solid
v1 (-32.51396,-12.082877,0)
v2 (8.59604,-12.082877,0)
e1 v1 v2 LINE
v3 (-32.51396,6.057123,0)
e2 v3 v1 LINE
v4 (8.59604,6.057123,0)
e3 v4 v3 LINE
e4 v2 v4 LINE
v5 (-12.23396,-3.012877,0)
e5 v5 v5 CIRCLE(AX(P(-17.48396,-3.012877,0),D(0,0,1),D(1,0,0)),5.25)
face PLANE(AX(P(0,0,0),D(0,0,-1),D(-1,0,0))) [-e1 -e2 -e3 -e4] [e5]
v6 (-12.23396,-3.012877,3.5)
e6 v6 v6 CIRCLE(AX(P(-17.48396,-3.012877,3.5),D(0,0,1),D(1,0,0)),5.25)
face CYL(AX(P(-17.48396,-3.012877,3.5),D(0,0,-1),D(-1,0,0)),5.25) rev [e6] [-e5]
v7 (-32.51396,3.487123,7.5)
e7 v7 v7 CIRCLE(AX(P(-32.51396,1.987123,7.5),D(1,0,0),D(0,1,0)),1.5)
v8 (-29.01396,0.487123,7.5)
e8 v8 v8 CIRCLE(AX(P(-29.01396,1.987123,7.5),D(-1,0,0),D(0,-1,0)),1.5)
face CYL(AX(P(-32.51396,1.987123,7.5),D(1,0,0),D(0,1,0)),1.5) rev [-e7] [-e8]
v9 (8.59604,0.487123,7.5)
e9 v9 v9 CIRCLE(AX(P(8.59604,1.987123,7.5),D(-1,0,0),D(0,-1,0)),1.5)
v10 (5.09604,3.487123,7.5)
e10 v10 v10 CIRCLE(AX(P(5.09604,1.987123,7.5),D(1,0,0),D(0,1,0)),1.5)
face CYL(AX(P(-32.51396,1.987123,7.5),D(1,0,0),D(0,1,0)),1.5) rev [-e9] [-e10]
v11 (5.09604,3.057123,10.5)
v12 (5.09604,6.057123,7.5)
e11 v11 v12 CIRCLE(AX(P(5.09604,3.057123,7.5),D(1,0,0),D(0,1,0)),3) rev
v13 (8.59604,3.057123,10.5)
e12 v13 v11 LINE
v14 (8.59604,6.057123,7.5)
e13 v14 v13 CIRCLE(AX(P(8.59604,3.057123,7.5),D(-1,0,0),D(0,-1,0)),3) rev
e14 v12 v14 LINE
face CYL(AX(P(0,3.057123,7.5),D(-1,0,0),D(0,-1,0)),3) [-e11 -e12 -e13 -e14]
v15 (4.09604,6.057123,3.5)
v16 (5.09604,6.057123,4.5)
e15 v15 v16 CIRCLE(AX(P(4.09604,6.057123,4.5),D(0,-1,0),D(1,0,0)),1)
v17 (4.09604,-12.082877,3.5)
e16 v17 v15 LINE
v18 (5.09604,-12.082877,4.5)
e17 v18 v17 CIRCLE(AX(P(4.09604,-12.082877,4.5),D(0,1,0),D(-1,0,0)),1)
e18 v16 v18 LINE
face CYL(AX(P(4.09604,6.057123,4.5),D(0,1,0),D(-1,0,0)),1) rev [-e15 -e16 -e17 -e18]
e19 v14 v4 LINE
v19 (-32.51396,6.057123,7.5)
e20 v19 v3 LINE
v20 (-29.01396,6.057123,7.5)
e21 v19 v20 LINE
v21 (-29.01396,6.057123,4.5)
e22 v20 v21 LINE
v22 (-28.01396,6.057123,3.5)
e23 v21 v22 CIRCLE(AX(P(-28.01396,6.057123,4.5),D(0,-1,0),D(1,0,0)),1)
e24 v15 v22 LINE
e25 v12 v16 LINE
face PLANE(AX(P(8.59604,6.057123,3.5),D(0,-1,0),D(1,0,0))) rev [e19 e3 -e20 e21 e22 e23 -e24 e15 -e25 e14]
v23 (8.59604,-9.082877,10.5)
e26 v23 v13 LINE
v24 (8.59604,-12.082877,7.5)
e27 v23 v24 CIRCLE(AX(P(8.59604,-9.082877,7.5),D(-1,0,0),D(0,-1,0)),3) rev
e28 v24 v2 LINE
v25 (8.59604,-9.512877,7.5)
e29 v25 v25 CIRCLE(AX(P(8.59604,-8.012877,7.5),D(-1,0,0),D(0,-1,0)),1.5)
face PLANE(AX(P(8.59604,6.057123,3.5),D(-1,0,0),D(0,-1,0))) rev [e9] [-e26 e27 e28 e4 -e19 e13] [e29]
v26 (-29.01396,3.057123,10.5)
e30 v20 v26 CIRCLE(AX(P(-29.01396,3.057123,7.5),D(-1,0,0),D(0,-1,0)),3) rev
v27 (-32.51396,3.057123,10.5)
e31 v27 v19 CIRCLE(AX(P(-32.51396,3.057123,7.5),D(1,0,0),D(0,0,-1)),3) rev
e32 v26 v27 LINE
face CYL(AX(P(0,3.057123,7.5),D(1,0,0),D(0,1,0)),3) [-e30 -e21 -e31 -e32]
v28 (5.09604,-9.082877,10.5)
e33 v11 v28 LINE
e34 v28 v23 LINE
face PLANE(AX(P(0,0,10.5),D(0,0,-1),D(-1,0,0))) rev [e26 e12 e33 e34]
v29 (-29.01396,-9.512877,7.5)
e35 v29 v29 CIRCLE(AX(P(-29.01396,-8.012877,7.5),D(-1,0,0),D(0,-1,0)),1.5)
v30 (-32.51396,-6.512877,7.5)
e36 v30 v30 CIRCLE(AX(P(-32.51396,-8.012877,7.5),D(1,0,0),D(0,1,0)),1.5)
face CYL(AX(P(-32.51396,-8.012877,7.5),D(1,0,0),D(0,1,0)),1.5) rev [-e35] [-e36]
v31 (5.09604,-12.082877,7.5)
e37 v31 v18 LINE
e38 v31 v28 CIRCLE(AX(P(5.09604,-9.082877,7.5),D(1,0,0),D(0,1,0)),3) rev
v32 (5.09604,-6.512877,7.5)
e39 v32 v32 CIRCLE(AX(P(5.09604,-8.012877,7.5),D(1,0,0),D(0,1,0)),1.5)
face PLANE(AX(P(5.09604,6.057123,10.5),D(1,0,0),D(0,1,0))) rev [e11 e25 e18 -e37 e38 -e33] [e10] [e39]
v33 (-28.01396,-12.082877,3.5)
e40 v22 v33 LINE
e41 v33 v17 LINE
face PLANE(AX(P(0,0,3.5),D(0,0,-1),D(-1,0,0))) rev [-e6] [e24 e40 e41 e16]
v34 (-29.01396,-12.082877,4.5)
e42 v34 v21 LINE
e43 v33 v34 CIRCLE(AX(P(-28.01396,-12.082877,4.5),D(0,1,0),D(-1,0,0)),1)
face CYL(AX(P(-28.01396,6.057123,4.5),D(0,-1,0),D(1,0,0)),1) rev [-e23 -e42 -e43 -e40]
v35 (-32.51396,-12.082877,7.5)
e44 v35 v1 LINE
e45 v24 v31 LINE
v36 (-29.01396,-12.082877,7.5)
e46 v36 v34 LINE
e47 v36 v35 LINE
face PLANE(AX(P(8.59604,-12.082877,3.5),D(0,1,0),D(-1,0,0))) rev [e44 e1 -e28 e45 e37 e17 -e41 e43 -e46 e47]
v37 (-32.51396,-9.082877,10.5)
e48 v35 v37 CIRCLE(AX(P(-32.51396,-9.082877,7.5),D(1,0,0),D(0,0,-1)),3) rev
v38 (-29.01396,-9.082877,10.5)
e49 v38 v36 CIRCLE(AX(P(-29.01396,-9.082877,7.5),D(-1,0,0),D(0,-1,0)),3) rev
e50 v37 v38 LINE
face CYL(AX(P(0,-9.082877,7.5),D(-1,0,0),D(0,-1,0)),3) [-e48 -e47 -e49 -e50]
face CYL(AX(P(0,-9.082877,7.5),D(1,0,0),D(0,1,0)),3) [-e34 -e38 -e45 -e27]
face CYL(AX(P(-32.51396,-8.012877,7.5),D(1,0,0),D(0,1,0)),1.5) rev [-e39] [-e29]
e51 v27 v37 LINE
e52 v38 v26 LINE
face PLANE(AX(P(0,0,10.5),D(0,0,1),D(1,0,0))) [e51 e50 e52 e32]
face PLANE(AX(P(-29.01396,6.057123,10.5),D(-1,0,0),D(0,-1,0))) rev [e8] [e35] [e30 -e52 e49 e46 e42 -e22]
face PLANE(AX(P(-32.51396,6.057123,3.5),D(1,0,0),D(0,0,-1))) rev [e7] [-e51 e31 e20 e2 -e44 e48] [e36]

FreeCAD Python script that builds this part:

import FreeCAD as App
import Part
import Sketcher
from FreeCAD import Vector


def edges_at(feature, points):
    """Names of the edges that pass closest to the given points."""
    edges = feature.Shape.Edges
    near = lambda p: min(range(len(edges)), key=lambda i: edges[i].distToShape(Part.Vertex(*p))[0])
    return sorted({f"Edge{near(p) + 1}" for p in points})


def add_polygon(sketch, points):
    """Adds a closed chain of lines whose ends are joined by coincident constraints."""
    first, n = sketch.GeometryCount, len(points)
    for a, b in zip(points, points[1:] + points[:1]):
        sketch.addGeometry(Part.LineSegment(App.Vector(*a, 0), App.Vector(*b, 0)), False)
    for i in range(n):
        sketch.addConstraint(Sketcher.Constraint("Coincident", first + i, 2, first + (i + 1) % n, 1))

doc = App.newDocument("Part")
body = doc.addObject("PartDesign::Body", "Body")

sketch1 = doc.addObject("Sketcher::SketchObject", "Sketch")
body.addObject(sketch1)
sketch1.AttachmentSupport = (doc.XY_Plane, [""])
sketch1.MapMode = "FlatFace"
add_polygon(sketch1, [(-33, 6), (-33, -12), (9, -12), (9, 6)])
sketch1.addGeometry(Part.Circle(Vector(-17, -3, 0), Vector(0, 0, 1), 5), False)
sketch1.addConstraint([
    Sketcher.Constraint("Vertical", 0),
    Sketcher.Constraint("Horizontal", 1),
    Sketcher.Constraint("Vertical", 2),
    Sketcher.Constraint("Horizontal", 3),
    Sketcher.Constraint("Diameter", 4, 10.5),
    Sketcher.Constraint("DistanceX", 1, 1, 1, 2, 41.11),
    Sketcher.Constraint("DistanceY", 0, 2, 0, 1, 18.14),
    Sketcher.Constraint("DistanceX", 0, 2, 4, 3, 15.03),
    Sketcher.Constraint("DistanceY", 0, 2, 4, 3, 9.07),
    Sketcher.Constraint("DistanceX", 4, 3, -1, 1, 17.48396),
    Sketcher.Constraint("DistanceY", 4, 3, -1, 1, 3.012877),
])
pad1 = doc.addObject("PartDesign::Pad", "Pad")
body.addObject(pad1)
pad1.Profile = sketch1
pad1.Length = 3.5

sketch2 = doc.addObject("Sketcher::SketchObject", "Sketch001")
body.addObject(sketch2)
sketch2.AttachmentSupport = (doc.XY_Plane, [""])
sketch2.MapMode = "FlatFace"
sketch2.AttachmentOffset = App.Placement(Vector(0, 0, 3.5), App.Rotation())
add_polygon(sketch2, [(-32.5, 6.1), (-32.5, -12.1), (-29, -12.1), (-29, 6.1)])
add_polygon(sketch2, [(5.1, 6.1), (5.1, -12.1), (8.6, -12.1), (8.6, 6.1)])
sketch2.addConstraint([
    Sketcher.Constraint("Vertical", 0),
    Sketcher.Constraint("Horizontal", 1),
    Sketcher.Constraint("Vertical", 2),
    Sketcher.Constraint("Horizontal", 3),
    Sketcher.Constraint("Vertical", 4),
    Sketcher.Constraint("Horizontal", 5),
    Sketcher.Constraint("Vertical", 6),
    Sketcher.Constraint("Horizontal", 7),
    Sketcher.Constraint("Horizontal", 1, 2, 4, 2),
    Sketcher.Constraint("Horizontal", 3, 2, 6, 2),
    Sketcher.Constraint("Equal", 3, 5),
    Sketcher.Constraint("DistanceX", 1, 1, 1, 2, 3.5),
    Sketcher.Constraint("DistanceY", 0, 2, 0, 1, 18.14),
    Sketcher.Constraint("DistanceX", 1, 2, 4, 2, 34.11),
    Sketcher.Constraint("DistanceX", 0, 2, -1, 1, 32.51396),
    Sketcher.Constraint("DistanceY", 0, 2, -1, 1, 12.082877),
])
pad2 = doc.addObject("PartDesign::Pad", "Pad001")
body.addObject(pad2)
pad2.Profile = sketch2
pad2.Length = 7

sketch3 = doc.addObject("Sketcher::SketchObject", "Sketch002")
body.addObject(sketch3)
sketch3.AttachmentSupport = (doc.YZ_Plane, [""])
sketch3.MapMode = "FlatFace"
sketch3.AttachmentOffset = App.Placement(Vector(0, 0, 8.59604), App.Rotation())
sketch3.addGeometry([
    Part.Circle(Vector(2, 7.5, 0), Vector(0, 0, 1), 1.5),
    Part.Circle(Vector(-8, 7.5, 0), Vector(0, 0, 1), 1.5),
], False)
sketch3.addConstraint([
    Sketcher.Constraint("Equal", 0, 1),
    Sketcher.Constraint("Horizontal", 0, 3, 1, 3),
    Sketcher.Constraint("Diameter", 0, 3.0),
    Sketcher.Constraint("DistanceX", 1, 3, 0, 3, 10.0),
    Sketcher.Constraint("DistanceY", -1, 1, 0, 3, 7.5),
    Sketcher.Constraint("DistanceX", -1, 1, 0, 3, 1.987123),
])
pocket1 = doc.addObject("PartDesign::Pocket", "Pocket")
body.addObject(pocket1)
pocket1.Profile = sketch3
pocket1.Type = "ThroughAll"
pocket1.Midplane = True
doc.recompute()

fillet = doc.addObject("PartDesign::Fillet", "Fillet")
body.addObject(fillet)
fillet.Base = (pocket1, edges_at(pocket1, [(-29.014, -3.013, 3.5), (5.096, -3.013, 3.5)]))
fillet.Radius = 1
doc.recompute()

fillet2 = doc.addObject("PartDesign::Fillet", "Fillet001")
body.addObject(fillet2)
fillet2.Base = (fillet, edges_at(fillet, [
    (-30.764, -12.083, 10.5),
    (-30.764, 6.057, 10.5),
    (6.846, 6.057, 10.5),
    (6.846, -12.083, 10.5),
]))
fillet2.Radius = 3

doc.recompute()
